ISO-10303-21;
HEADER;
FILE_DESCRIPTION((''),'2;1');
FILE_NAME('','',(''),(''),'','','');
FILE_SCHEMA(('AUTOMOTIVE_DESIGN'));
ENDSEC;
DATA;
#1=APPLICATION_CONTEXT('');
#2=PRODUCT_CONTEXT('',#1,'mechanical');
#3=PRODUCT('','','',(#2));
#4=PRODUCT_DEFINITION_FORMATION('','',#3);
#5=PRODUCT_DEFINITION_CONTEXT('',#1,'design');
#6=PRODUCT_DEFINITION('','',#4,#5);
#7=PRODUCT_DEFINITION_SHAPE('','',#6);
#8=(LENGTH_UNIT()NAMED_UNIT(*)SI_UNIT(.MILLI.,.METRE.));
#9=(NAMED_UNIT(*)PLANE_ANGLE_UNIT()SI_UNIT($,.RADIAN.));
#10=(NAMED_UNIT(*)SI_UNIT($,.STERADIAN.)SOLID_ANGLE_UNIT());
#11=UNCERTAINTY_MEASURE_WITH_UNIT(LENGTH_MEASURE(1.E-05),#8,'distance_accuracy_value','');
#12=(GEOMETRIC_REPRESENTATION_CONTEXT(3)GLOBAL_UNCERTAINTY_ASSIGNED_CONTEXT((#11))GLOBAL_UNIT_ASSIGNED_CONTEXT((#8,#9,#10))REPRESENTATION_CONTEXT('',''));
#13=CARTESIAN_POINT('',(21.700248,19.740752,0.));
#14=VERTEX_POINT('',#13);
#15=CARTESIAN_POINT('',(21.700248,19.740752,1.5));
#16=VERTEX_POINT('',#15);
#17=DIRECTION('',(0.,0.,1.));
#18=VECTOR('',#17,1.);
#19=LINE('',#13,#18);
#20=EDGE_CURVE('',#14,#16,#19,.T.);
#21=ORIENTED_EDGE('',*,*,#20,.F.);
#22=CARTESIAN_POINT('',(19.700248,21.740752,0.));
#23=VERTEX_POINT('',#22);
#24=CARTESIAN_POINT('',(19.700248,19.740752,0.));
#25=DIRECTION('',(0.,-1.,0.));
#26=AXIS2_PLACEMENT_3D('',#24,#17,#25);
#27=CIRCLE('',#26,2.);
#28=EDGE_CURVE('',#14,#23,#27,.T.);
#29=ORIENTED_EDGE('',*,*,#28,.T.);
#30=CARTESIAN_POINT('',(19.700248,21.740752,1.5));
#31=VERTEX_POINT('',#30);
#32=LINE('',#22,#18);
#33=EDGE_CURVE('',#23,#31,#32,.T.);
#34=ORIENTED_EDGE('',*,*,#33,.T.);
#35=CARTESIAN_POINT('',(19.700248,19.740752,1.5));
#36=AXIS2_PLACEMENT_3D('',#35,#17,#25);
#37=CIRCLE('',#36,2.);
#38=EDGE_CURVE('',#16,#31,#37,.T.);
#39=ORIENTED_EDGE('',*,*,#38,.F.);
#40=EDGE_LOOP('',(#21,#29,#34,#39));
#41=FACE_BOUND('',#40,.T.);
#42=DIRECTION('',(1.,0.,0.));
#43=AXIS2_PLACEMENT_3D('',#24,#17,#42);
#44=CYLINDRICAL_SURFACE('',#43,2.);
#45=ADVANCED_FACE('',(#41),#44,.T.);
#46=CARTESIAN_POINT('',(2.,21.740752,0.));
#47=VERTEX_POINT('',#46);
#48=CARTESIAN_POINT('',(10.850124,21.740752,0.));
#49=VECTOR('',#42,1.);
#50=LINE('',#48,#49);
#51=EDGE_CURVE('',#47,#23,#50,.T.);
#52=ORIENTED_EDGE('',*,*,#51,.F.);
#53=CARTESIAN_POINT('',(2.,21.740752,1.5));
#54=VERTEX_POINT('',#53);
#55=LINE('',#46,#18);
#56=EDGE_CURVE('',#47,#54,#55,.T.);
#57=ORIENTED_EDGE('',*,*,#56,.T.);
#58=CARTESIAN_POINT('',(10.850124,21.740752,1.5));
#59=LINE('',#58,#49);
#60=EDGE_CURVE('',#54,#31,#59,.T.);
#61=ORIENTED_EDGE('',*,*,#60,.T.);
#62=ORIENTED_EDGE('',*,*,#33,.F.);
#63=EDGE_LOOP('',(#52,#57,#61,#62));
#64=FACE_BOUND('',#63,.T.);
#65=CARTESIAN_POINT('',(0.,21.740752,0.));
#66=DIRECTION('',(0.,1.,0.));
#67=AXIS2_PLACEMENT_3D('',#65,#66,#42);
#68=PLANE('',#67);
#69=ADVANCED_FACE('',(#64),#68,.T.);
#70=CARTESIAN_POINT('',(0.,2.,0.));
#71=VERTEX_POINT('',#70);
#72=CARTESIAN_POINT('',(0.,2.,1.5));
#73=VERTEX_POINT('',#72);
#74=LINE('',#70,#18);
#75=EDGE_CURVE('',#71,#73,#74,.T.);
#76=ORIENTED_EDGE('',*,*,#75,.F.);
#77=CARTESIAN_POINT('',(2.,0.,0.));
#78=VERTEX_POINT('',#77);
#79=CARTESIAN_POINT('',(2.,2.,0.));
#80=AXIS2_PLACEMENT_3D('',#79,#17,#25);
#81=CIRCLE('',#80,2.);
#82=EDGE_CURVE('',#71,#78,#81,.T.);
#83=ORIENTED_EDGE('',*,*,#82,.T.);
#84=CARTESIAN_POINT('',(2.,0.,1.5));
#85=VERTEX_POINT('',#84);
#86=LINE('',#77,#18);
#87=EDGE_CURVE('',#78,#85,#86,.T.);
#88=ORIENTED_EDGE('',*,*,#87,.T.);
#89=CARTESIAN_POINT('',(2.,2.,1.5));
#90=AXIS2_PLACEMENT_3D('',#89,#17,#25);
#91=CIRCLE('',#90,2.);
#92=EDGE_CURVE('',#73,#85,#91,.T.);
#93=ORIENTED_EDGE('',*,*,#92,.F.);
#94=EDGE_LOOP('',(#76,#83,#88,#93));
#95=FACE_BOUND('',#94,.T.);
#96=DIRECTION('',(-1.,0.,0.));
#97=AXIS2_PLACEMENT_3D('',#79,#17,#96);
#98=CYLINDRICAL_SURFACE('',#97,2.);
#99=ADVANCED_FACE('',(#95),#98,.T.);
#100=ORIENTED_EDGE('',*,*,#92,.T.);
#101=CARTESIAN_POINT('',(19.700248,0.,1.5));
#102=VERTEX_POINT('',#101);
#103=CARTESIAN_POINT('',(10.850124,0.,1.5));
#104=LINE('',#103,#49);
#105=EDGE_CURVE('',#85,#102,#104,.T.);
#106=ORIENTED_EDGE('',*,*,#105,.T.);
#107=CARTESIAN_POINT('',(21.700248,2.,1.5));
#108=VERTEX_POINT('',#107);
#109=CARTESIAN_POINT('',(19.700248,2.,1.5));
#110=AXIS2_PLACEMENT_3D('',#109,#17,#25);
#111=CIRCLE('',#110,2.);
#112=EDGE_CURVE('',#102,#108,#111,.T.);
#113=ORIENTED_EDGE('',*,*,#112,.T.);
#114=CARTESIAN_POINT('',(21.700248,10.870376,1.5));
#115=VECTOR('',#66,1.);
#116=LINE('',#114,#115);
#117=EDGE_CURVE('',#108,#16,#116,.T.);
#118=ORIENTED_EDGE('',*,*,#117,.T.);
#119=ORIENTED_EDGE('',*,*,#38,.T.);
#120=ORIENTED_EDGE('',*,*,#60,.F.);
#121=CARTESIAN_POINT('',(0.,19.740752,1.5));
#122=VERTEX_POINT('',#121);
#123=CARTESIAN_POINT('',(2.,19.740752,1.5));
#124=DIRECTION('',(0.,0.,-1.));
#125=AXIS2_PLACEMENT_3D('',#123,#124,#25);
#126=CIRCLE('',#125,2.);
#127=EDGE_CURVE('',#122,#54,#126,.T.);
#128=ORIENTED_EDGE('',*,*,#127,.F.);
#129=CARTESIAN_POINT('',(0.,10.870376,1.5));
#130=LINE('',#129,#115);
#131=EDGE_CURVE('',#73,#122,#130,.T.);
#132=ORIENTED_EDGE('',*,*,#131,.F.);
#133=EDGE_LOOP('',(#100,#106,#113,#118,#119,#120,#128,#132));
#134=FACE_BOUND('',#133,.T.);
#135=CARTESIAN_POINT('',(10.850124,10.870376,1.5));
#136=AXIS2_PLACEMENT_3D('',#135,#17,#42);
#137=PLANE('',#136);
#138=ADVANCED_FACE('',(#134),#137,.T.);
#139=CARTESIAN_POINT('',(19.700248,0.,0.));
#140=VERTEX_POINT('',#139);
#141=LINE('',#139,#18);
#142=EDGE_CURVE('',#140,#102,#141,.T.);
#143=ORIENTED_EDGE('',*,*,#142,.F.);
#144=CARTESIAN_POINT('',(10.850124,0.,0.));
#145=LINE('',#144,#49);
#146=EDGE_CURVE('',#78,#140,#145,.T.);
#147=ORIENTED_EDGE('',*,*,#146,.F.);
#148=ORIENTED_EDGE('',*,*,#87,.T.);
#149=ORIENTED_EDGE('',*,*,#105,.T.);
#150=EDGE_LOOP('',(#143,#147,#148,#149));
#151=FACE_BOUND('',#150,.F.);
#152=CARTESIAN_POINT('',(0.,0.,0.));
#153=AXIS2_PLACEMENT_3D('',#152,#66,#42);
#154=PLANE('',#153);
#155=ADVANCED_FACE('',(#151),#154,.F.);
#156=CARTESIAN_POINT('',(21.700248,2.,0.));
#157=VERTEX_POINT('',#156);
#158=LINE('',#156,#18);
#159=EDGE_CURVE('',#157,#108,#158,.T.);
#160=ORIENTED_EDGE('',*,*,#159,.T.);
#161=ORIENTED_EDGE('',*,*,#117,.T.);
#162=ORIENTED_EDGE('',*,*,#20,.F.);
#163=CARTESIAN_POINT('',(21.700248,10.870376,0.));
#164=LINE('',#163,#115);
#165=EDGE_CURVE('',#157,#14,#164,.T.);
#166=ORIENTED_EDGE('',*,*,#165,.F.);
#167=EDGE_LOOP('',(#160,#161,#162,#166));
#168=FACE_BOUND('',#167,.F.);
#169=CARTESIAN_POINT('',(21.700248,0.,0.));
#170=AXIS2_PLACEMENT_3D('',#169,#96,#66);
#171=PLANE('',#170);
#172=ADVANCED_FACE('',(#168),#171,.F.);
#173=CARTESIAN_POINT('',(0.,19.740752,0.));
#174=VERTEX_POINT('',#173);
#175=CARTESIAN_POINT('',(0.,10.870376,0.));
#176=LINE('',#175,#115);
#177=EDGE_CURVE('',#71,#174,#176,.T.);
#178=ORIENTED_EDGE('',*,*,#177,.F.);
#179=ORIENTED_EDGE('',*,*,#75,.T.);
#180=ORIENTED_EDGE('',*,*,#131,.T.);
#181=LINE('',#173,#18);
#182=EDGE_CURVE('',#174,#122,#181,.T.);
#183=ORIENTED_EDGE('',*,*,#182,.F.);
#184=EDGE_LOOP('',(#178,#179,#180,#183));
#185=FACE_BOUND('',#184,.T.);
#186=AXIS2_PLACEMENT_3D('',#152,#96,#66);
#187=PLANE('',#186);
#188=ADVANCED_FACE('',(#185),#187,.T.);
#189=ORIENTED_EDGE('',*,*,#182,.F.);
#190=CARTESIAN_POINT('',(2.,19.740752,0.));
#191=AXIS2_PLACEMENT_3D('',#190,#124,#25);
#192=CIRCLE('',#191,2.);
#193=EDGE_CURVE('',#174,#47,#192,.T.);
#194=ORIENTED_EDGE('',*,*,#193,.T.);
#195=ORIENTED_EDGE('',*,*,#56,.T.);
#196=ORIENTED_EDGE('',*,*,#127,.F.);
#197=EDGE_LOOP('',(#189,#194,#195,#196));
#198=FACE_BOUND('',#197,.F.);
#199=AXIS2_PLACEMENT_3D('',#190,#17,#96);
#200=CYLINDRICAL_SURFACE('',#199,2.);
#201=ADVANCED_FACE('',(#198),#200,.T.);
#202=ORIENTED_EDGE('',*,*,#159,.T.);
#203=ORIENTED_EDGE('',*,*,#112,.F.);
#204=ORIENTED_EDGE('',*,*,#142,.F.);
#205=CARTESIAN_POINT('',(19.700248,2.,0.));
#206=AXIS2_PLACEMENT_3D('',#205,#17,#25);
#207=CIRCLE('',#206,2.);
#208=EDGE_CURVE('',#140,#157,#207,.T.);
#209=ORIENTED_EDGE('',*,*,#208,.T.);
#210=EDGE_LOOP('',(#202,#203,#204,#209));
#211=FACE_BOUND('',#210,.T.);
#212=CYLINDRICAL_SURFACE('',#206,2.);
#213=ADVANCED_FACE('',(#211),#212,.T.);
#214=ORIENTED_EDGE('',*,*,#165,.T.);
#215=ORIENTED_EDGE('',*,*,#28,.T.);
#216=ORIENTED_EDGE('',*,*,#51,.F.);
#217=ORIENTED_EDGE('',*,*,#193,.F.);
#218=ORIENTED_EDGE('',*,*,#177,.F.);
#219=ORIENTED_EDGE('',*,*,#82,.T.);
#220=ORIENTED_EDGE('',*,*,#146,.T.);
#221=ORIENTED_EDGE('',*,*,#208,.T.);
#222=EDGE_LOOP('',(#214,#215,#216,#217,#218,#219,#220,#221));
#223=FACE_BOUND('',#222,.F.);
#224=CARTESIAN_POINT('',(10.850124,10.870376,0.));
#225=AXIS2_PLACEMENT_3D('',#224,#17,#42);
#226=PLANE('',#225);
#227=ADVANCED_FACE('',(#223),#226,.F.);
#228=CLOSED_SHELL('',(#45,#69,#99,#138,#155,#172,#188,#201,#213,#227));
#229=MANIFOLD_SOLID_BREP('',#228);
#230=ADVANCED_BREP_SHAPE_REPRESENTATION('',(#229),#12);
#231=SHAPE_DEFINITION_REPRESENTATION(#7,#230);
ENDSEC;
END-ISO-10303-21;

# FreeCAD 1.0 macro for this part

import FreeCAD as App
import Part
import Sketcher

V = App.Vector
Q = App.Units.Quantity


def edges_at(feature, points):
    """Names of the edges that pass closest to the given points."""
    edges = feature.Shape.Edges
    near = lambda p: min(range(len(edges)), key=lambda i: edges[i].distToShape(Part.Vertex(*p))[0])
    return sorted({f"Edge{near(p) + 1}" for p in points})


def add_polygon(sketch, points):
    """Adds a closed chain of lines whose ends are joined by coincident constraints."""
    first, n = sketch.GeometryCount, len(points)
    for a, b in zip(points, points[1:] + points[:1]):
        sketch.addGeometry(Part.LineSegment(App.Vector(*a, 0), App.Vector(*b, 0)), False)
    for i in range(n):
        sketch.addConstraint(Sketcher.Constraint("Coincident", first + i, 2, first + (i + 1) % n, 1))

doc = App.newDocument("Part")
params = doc.addObject("Spreadsheet::Sheet", "Params")
for row, (alias, value) in enumerate([
    ("pad1_length", "1.5 mm"),
    ("fillet_radius", "2 mm"),
], start=1):
    params.set(f"A{row}", alias)
    params.set(f"B{row}", "=" + value)
    params.setAlias(f"B{row}", alias)

body = doc.addObject("PartDesign::Body", "Body")

sketch1 = body.newObject("Sketcher::SketchObject", "Sketch")
sketch1.AttachmentSupport = (doc.getObject("XY_Plane"), [""])
sketch1.MapMode = "FlatFace"
add_polygon(sketch1, [(0, 22), (0, 0), (22, 0), (22, 22)])
sketch1.addConstraint([
    Sketcher.Constraint("Vertical", 0),
    Sketcher.Constraint("Horizontal", 1),
    Sketcher.Constraint("Vertical", 2),
    Sketcher.Constraint("Horizontal", 3),
    Sketcher.Constraint("Coincident", 0, 2, -1, 1),
    Sketcher.Constraint("DistanceY", 0, 2, 0, 1, Q("21.740752 mm")),
    Sketcher.Constraint("DistanceX", 1, 1, 1, 2, Q("21.700248 mm")),
])
pad1 = body.newObject("PartDesign::Pad", "Pad")
pad1.Profile = sketch1
pad1.setExpression("Length", "Params.pad1_length")
doc.recompute()

fillet = body.newObject("PartDesign::Fillet", "Fillet")
fillet.Base = (pad1, edges_at(pad1, [
    (0, 21.741, 0.75),
    (21.7, 21.741, 0.75),
    (21.7, 0, 0.75),
    (0, 0, 0.75),
]))
fillet.setExpression("Radius", "Params.fillet_radius")

doc.recompute()
